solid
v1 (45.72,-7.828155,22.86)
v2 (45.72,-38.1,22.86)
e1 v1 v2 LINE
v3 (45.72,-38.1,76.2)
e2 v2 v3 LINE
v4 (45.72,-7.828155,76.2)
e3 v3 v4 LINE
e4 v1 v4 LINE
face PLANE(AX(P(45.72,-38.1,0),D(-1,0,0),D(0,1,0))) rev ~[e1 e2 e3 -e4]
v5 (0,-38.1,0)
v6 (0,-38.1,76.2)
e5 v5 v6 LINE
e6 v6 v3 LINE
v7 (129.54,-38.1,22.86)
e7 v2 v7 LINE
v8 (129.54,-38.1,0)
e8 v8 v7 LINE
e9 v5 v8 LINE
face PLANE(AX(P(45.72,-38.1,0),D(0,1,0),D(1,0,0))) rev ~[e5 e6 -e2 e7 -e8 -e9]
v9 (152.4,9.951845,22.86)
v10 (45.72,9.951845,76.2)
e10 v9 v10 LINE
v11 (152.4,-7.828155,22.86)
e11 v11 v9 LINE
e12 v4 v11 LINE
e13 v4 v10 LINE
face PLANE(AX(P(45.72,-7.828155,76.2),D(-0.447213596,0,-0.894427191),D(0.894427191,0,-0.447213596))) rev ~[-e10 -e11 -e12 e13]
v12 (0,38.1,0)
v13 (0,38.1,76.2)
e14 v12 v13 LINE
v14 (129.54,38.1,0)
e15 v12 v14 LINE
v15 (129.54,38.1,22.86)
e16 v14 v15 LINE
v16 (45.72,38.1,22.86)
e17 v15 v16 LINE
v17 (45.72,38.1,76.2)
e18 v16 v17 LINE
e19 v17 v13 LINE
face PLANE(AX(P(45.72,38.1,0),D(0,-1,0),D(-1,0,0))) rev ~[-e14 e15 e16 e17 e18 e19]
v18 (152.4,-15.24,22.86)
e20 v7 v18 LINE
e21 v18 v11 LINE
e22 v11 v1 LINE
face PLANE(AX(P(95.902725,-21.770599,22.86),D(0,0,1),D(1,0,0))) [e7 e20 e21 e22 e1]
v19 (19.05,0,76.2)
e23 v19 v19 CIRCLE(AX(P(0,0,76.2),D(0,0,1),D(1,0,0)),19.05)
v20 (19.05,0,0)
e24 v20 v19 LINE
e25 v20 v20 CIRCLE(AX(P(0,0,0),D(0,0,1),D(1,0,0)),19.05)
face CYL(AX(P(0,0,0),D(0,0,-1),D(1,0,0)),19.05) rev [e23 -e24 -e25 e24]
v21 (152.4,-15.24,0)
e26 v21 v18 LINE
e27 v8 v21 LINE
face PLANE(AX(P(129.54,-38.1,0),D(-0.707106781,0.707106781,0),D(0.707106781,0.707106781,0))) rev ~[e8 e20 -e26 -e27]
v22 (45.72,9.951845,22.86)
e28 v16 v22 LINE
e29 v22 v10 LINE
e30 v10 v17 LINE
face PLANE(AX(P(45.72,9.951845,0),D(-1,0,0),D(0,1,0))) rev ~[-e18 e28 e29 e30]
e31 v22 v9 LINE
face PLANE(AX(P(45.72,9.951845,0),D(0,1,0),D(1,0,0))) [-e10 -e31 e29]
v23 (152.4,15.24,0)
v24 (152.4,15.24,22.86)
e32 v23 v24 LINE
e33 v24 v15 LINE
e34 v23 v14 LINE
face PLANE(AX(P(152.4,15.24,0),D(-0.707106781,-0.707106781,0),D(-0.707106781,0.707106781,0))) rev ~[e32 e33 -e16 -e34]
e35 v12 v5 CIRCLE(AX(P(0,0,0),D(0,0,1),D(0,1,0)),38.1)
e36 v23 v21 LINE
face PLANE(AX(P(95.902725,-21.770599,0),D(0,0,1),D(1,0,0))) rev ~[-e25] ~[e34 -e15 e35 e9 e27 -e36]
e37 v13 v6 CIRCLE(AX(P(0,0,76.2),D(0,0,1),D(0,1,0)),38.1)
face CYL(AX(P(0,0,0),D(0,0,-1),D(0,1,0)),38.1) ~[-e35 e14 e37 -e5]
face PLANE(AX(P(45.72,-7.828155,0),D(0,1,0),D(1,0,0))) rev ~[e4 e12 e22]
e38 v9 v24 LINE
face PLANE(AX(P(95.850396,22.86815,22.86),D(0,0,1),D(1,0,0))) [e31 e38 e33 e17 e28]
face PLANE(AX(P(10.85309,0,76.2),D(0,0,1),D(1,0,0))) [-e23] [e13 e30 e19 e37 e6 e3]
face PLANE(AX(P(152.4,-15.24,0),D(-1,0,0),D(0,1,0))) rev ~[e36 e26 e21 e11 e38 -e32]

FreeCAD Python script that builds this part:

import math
import FreeCAD as App
import Part
import Sketcher
from FreeCAD import Vector
Q = App.Units.Quantity


def add_polygon(sketch, points):
    """Adds a closed chain of lines whose ends are joined by coincident constraints."""
    first, n = sketch.GeometryCount, len(points)
    for a, b in zip(points, points[1:] + points[:1]):
        sketch.addGeometry(Part.LineSegment(App.Vector(*a, 0), App.Vector(*b, 0)), False)
    for i in range(n):
        sketch.addConstraint(Sketcher.Constraint("Coincident", first + i, 2, first + (i + 1) % n, 1))

doc = App.newDocument("Part")
body = doc.addObject("PartDesign::Body", "Body")

sketch1 = body.newObject("Sketcher::SketchObject", "Sketch")
sketch1.AttachmentSupport = (doc.getObject("XY_Plane"), [""])
sketch1.MapMode = "FlatFace"
sketch1.addGeometry([
    Part.LineSegment(Vector(46, 38, 0), Vector(0, 38, 0)),
    Part.ArcOfCircle(Part.Circle(Vector(0, 0, 0), Vector(0, 0, 1), 38), math.radians(90), math.radians(270)),
    Part.LineSegment(Vector(0, -38, 0), Vector(46, -38, 0)),
    Part.LineSegment(Vector(46, -38, 0), Vector(46, -8, 0)),
    Part.LineSegment(Vector(46, -8, 0), Vector(152, -8, 0)),
    Part.LineSegment(Vector(152, -8, 0), Vector(152, 10, 0)),
    Part.LineSegment(Vector(152, 10, 0), Vector(46, 10, 0)),
    Part.LineSegment(Vector(46, 10, 0), Vector(46, 38, 0)),
    Part.Circle(Vector(0, 0, 0), Vector(0, 0, 1), 19),
], False)
sketch1.addConstraint([
    Sketcher.Constraint("Tangent", 0, 2, 1, 1),
    Sketcher.Constraint("Tangent", 1, 2, 2, 1),
    Sketcher.Constraint("Coincident", 2, 2, 3, 1),
    Sketcher.Constraint("Coincident", 3, 2, 4, 1),
    Sketcher.Constraint("Coincident", 4, 2, 5, 1),
    Sketcher.Constraint("Coincident", 5, 2, 6, 1),
    Sketcher.Constraint("Coincident", 6, 2, 7, 1),
    Sketcher.Constraint("Coincident", 7, 2, 0, 1),
    Sketcher.Constraint("Horizontal", 0),
    Sketcher.Constraint("Horizontal", 2),
    Sketcher.Constraint("Vertical", 3),
    Sketcher.Constraint("Horizontal", 4),
    Sketcher.Constraint("Vertical", 5),
    Sketcher.Constraint("Horizontal", 6),
    Sketcher.Constraint("Vertical", 7),
    Sketcher.Constraint("Coincident", 1, 3, -1, 1),
    Sketcher.Constraint("Coincident", 8, 3, -1, 1),
    Sketcher.Constraint("Vertical", 3, 2, 6, 2),
    Sketcher.Constraint("Diameter", 8, Q("1.5 in")),
    Sketcher.Constraint("Radius", 1, Q("1.5 in")),
    Sketcher.Constraint("DistanceX", 0, 2, 0, 1, Q("1.8 in")),
    Sketcher.Constraint("DistanceX", 4, 1, 4, 2, Q("4.2 in")),
    Sketcher.Constraint("DistanceY", 5, 1, 5, 2, Q("0.7 in")),
    Sketcher.Constraint("DistanceY", 3, 1, 3, 2, Q("30.271845 mm")),
])
pad1 = body.newObject("PartDesign::Pad", "Pad")
pad1.Profile = sketch1
pad1.Length = Q("3 in")

sketch2 = body.newObject("Sketcher::SketchObject", "Sketch001")
sketch2.AttachmentSupport = (doc.getObject("XY_Plane"), [""])
sketch2.MapMode = "FlatFace"
add_polygon(sketch2, [(46, -8), (46, -38), (130, -38), (152, -15), (152, -8)])
add_polygon(sketch2, [(130, 38), (46, 38), (46, 10), (152, 10), (152, 15)])
sketch2.addConstraint([
    Sketcher.Constraint("Vertical", 0),
    Sketcher.Constraint("Horizontal", 1),
    Sketcher.Constraint("Vertical", 3),
    Sketcher.Constraint("Horizontal", 4),
    Sketcher.Constraint("Horizontal", 5),
    Sketcher.Constraint("Vertical", 6),
    Sketcher.Constraint("Horizontal", 7),
    Sketcher.Constraint("Vertical", 8),
    Sketcher.Constraint("Symmetric", 0, 2, 5, 2, -1),
    Sketcher.Constraint("Symmetric", 2, 2, 8, 2, -1),
    Sketcher.Constraint("Perpendicular", 2, 9),
    Sketcher.Constraint("Vertical", 1, 2, 9, 2),
    Sketcher.Constraint("DistanceX", 1, 1, 1, 2, Q("3.3 in")),
    Sketcher.Constraint("DistanceX", 4, 2, 4, 1, Q("4.2 in")),
    Sketcher.Constraint("DistanceX", -1, 1, 2, 2, Q("6 in")),
    Sketcher.Constraint("DistanceY", 0, 2, 5, 2, Q("3 in")),
    Sketcher.Constraint("DistanceY", 4, 2, 6, 2, Q("0.7 in")),
    Sketcher.Constraint("DistanceY", 0, 2, 0, 1, Q("30.271845 mm")),
])
pad2 = body.newObject("PartDesign::Pad", "Pad001")
pad2.Profile = sketch2
pad2.Length = Q("0.9 in")

sketch3 = body.newObject("Sketcher::SketchObject", "Sketch002")
sketch3.AttachmentSupport = (doc.getObject("XZ_Plane"), [""])
sketch3.MapMode = "FlatFace"
sketch3.AttachmentOffset = App.Placement(Vector(0, 0, 7.828155), App.Rotation())
add_polygon(sketch3, [(152, 76), (46, 76), (152, 23)])
sketch3.addConstraint([
    Sketcher.Constraint("Horizontal", 0),
    Sketcher.Constraint("Vertical", 2),
    Sketcher.Constraint("DistanceX", 0, 2, 0, 1, Q("4.2 in")),
    Sketcher.Constraint("DistanceY", 2, 1, 2, 2, Q("2.1 in")),
    Sketcher.Constraint("DistanceY", -1, 1, 0, 2, Q("3 in")),
    Sketcher.Constraint("DistanceX", -1, 1, 1, 2, Q("6 in")),
])
pocket1 = body.newObject("PartDesign::Pocket", "Pocket")
pocket1.Profile = sketch3
pocket1.Length = Q("1 in")

doc.recompute()
